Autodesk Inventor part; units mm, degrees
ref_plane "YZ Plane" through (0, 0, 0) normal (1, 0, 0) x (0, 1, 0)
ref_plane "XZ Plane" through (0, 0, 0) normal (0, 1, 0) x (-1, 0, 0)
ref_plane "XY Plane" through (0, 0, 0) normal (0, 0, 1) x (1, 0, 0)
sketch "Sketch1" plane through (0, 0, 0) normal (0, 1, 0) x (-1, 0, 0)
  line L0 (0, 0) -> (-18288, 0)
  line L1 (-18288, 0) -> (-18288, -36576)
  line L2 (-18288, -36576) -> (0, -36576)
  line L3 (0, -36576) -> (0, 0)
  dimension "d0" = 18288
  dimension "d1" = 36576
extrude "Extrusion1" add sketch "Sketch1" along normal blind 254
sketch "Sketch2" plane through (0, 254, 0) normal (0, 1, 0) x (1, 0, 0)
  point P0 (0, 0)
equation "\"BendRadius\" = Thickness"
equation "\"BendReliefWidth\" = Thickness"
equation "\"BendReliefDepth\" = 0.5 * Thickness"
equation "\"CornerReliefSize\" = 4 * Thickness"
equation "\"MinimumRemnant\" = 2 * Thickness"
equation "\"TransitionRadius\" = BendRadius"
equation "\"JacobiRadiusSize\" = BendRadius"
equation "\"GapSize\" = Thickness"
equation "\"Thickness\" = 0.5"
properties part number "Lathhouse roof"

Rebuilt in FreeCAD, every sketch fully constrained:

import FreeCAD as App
import Part
import Sketcher
from FreeCAD import Vector
Q = App.Units.Quantity


def add_polygon(sketch, points):
    """Adds a closed chain of lines whose ends are joined by coincident constraints."""
    first, n = sketch.GeometryCount, len(points)
    for a, b in zip(points, points[1:] + points[:1]):
        sketch.addGeometry(Part.LineSegment(App.Vector(*a, 0), App.Vector(*b, 0)), False)
    for i in range(n):
        sketch.addConstraint(Sketcher.Constraint("Coincident", first + i, 2, first + (i + 1) % n, 1))

doc = App.newDocument("Part")
body = doc.addObject("PartDesign::Body", "Body")

sketch1 = body.newObject("Sketcher::SketchObject", "Sketch")
sketch1.AttachmentSupport = (doc.getObject("XZ_Plane"), [""])
sketch1.MapMode = "FlatFace"
add_polygon(sketch1, [(0, -36576), (0, 0), (18288, 0), (18288, -36576)])
sketch1.addConstraint([
    Sketcher.Constraint("Vertical", 0),
    Sketcher.Constraint("Horizontal", 1),
    Sketcher.Constraint("Vertical", 2),
    Sketcher.Constraint("Horizontal", 3),
    Sketcher.Constraint("Coincident", 0, 2, -1, 1),
    Sketcher.Constraint("DistanceX", 1, 1, 1, 2, Q("720 in")),
    Sketcher.Constraint("DistanceY", 0, 1, 0, 2, Q("1440 in")),
])
pad1 = body.newObject("PartDesign::Pad", "Pad")
pad1.Profile = sketch1
pad1.Length = Q("10 in")
pad1.Reversed = True

doc.recompute()
